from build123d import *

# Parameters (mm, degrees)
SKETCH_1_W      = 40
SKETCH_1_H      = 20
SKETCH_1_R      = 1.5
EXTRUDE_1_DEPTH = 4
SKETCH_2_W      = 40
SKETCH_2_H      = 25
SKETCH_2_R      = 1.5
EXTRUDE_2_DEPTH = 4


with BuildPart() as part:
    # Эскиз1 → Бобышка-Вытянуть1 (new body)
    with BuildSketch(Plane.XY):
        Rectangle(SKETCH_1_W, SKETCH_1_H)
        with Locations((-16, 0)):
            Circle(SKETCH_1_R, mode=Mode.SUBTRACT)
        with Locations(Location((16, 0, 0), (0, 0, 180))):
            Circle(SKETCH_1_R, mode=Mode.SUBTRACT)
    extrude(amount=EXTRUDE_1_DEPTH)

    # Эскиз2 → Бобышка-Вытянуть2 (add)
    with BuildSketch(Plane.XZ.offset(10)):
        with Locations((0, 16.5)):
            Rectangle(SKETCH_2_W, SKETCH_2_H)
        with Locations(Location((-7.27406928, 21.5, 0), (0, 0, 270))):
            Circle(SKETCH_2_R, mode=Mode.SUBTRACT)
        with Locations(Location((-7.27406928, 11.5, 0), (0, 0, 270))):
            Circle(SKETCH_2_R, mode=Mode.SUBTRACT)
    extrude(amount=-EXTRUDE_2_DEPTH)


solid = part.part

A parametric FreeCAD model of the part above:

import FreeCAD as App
import Part
import Sketcher

doc = App.newDocument("Part")
body = doc.addObject("PartDesign::Body", "Body")

# Sketch on XY plane
sketch1 = body.newObject("Sketcher::SketchObject", "Sketch")
sketch1.AttachmentSupport = (doc.getObject("XY_Plane"), [""])
sketch1.MapMode = "FlatFace"
sketch1.addGeometry([
    Part.LineSegment(App.Vector(-20, 10, 0), App.Vector(-20, -10, 0)),  # 0
    Part.LineSegment(App.Vector(-20, -10, 0), App.Vector(20, -10, 0)),  # 1
    Part.LineSegment(App.Vector(20, -10, 0), App.Vector(20, 10, 0)),  # 2
    Part.LineSegment(App.Vector(20, 10, 0), App.Vector(-20, 10, 0)),  # 3
    Part.Circle(App.Vector(-16, 0, 0), App.Vector(0, 0, 1), 1.5),  # 4
    Part.Circle(App.Vector(16, 0, 0), App.Vector(0, 0, 1), 1.5),  # 5
], False)
sketch1.addConstraint([
    Sketcher.Constraint("Coincident", 0, 2, 1, 1),
    Sketcher.Constraint("Coincident", 1, 2, 2, 1),
    Sketcher.Constraint("Coincident", 2, 2, 3, 1),
    Sketcher.Constraint("Coincident", 3, 2, 0, 1),
    Sketcher.Constraint("Vertical", 0),
    Sketcher.Constraint("Horizontal", 1),
    Sketcher.Constraint("Vertical", 2),
    Sketcher.Constraint("Horizontal", 3),
    Sketcher.Constraint("Equal", 4, 5),
    Sketcher.Constraint("Symmetric", 4, 3, 5, 3, -1, 1),
    Sketcher.Constraint("Symmetric", 0, 2, 2, 2, -1, 1),
    Sketcher.Constraint("PointOnObject", 4, 3, -1),
    Sketcher.Constraint("Diameter", 4, 3.0),
    Sketcher.Constraint("DistanceX", 1, 1, 1, 2, 40.0),
    Sketcher.Constraint("DistanceY", 0, 2, 0, 1, 20.0),
    Sketcher.Constraint("DistanceX", 4, 3, -1, 1, 16.0),
])
pad1 = body.newObject("PartDesign::Pad", "Pad")
pad1.Profile = sketch1
pad1.Length = 4

# Sketch on XZ plane
sketch2 = body.newObject("Sketcher::SketchObject", "Sketch001")
sketch2.AttachmentSupport = (doc.getObject("XZ_Plane"), [""])
sketch2.MapMode = "FlatFace"
sketch2.AttachmentOffset = App.Placement(App.Vector(0, 0, 10), App.Rotation())
sketch2.addGeometry([
    Part.LineSegment(App.Vector(-20, 29, 0), App.Vector(-20, 4, 0)),  # 0
    Part.LineSegment(App.Vector(-20, 4, 0), App.Vector(20, 4, 0)),  # 1
    Part.LineSegment(App.Vector(20, 4, 0), App.Vector(20, 29, 0)),  # 2
    Part.LineSegment(App.Vector(20, 29, 0), App.Vector(-20, 29, 0)),  # 3
    Part.Circle(App.Vector(-7.3, 11.5, 0), App.Vector(0, 0, 1), 1.5),  # 4
    Part.Circle(App.Vector(-7.3, 21.5, 0), App.Vector(0, 0, 1), 1.5),  # 5
], False)
sketch2.addConstraint([
    Sketcher.Constraint("Coincident", 0, 2, 1, 1),
    Sketcher.Constraint("Coincident", 1, 2, 2, 1),
    Sketcher.Constraint("Coincident", 2, 2, 3, 1),
    Sketcher.Constraint("Coincident", 3, 2, 0, 1),
    Sketcher.Constraint("Vertical", 0),
    Sketcher.Constraint("Horizontal", 1),
    Sketcher.Constraint("Vertical", 2),
    Sketcher.Constraint("Horizontal", 3),
    Sketcher.Constraint("Equal", 4, 5),
    Sketcher.Constraint("Vertical", 4, 3, 5, 3),
    Sketcher.Constraint("Diameter", 4, 3.0),
    Sketcher.Constraint("DistanceX", 1, 1, 1, 2, 40.0),
    Sketcher.Constraint("DistanceY", 0, 2, 0, 1, 25.0),
    Sketcher.Constraint("DistanceX", 0, 2, -1, 1, 20.0),
    Sketcher.Constraint("DistanceY", -1, 1, 0, 2, 4.0),
    Sketcher.Constraint("DistanceY", 4, 3, 5, 3, 10.0),
    Sketcher.Constraint("DistanceY", -1, 1, 4, 3, 11.5),
    Sketcher.Constraint("DistanceX", 4, 3, -1, 1, 7.274069),
])
pad2 = body.newObject("PartDesign::Pad", "Pad001")
pad2.Profile = sketch2
pad2.Length = 4
pad2.Reversed = True

doc.recompute()
